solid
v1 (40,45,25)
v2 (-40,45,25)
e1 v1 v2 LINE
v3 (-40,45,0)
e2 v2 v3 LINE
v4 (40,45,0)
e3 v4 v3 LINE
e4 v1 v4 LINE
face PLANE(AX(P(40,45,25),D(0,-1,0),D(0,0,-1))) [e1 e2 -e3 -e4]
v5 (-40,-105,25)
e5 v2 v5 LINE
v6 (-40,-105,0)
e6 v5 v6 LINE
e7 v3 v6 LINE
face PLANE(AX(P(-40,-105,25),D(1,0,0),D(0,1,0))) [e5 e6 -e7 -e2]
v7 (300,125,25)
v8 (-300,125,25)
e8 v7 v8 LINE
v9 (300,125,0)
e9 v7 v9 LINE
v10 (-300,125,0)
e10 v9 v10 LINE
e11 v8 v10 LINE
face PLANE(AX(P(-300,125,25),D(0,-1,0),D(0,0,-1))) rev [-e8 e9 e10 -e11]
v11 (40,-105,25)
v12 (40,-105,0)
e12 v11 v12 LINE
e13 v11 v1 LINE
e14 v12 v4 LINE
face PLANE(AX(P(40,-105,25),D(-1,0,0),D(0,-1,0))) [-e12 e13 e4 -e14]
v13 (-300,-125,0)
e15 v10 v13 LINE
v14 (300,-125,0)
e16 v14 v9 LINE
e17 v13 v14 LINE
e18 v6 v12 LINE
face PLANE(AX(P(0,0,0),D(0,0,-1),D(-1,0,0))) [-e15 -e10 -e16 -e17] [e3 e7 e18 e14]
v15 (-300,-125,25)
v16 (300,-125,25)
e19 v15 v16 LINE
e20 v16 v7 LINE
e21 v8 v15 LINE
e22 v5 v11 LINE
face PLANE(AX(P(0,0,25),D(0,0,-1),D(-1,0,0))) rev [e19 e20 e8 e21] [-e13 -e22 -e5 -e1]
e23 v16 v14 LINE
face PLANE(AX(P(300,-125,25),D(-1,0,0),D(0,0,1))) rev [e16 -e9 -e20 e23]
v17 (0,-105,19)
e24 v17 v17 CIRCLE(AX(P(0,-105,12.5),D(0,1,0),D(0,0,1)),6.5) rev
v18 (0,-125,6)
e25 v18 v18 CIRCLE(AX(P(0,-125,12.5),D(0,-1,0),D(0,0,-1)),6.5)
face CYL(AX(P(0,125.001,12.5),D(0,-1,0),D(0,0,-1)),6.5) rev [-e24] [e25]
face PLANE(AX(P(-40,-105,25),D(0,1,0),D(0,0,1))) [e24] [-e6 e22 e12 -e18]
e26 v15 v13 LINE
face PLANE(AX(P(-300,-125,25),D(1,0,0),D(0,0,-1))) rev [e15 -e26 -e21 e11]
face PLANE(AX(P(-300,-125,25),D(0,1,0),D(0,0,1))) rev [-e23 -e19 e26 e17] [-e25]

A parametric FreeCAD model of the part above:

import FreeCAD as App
import Part
import Sketcher


def add_polygon(sketch, points):
    """Adds a closed chain of lines whose ends are joined by coincident constraints."""
    first, n = sketch.GeometryCount, len(points)
    for a, b in zip(points, points[1:] + points[:1]):
        sketch.addGeometry(Part.LineSegment(App.Vector(*a, 0), App.Vector(*b, 0)), False)
    for i in range(n):
        sketch.addConstraint(Sketcher.Constraint("Coincident", first + i, 2, first + (i + 1) % n, 1))

doc = App.newDocument("Part")
body = doc.addObject("PartDesign::Body", "Body")

# Sketch on XY plane
sketch1 = body.newObject("Sketcher::SketchObject", "Sketch")
sketch1.AttachmentSupport = (doc.getObject("XY_Plane"), [""])
sketch1.MapMode = "FlatFace"
add_polygon(sketch1, [(-300, 125), (-300, -125), (300, -125), (300, 125)])  # lines 0-3
add_polygon(sketch1, [(40, -105), (-40, -105), (-40, 45), (40, 45)])  # lines 4-7
sketch1.addConstraint(Sketcher.Constraint("Vertical", 0))
sketch1.addConstraint(Sketcher.Constraint("Horizontal", 1))
sketch1.addConstraint(Sketcher.Constraint("Vertical", 2))
sketch1.addConstraint(Sketcher.Constraint("Horizontal", 3))
sketch1.addConstraint(Sketcher.Constraint("Horizontal", 4))
sketch1.addConstraint(Sketcher.Constraint("Vertical", 5))
sketch1.addConstraint(Sketcher.Constraint("Horizontal", 6))
sketch1.addConstraint(Sketcher.Constraint("Vertical", 7))
sketch1.addConstraint(Sketcher.Constraint("Symmetric", 0, 2, 2, 2, -1, 1))
sketch1.addConstraint(Sketcher.Constraint("DistanceX", 1, 1, 1, 2, 600.0))
sketch1.addConstraint(Sketcher.Constraint("DistanceX", 4, 2, 4, 1, 80.0))
sketch1.addConstraint(Sketcher.Constraint("DistanceY", 0, 2, 0, 1, 250.0))
sketch1.addConstraint(Sketcher.Constraint("DistanceY", 5, 1, 5, 2, 150.0))
sketch1.addConstraint(Sketcher.Constraint("DistanceX", 4, 2, -1, 1, 40.0))
sketch1.addConstraint(Sketcher.Constraint("DistanceY", 4, 2, -1, 1, 105.0))
pad1 = body.newObject("PartDesign::Pad", "Pad")
pad1.Profile = sketch1
pad1.Length = 25

# Sketch on XZ plane
sketch2 = body.newObject("Sketcher::SketchObject", "Sketch001")
sketch2.AttachmentSupport = (doc.getObject("XZ_Plane"), [""])
sketch2.MapMode = "FlatFace"
sketch2.AttachmentOffset = App.Placement(App.Vector(0, 0, 125), App.Rotation())
sketch2.addGeometry(Part.Circle(App.Vector(0, 12, 0), App.Vector(0, 0, 1), 6), False)
sketch2.addConstraint(Sketcher.Constraint("PointOnObject", 0, 3, -2))
sketch2.addConstraint(Sketcher.Constraint("Diameter", 0, 13.0))
sketch2.addConstraint(Sketcher.Constraint("DistanceY", -1, 1, 0, 3, 12.5))
pocket1 = body.newObject("PartDesign::Pocket", "Pocket")
pocket1.Profile = sketch2
pocket1.Type = "UpToFirst"

doc.recompute()
